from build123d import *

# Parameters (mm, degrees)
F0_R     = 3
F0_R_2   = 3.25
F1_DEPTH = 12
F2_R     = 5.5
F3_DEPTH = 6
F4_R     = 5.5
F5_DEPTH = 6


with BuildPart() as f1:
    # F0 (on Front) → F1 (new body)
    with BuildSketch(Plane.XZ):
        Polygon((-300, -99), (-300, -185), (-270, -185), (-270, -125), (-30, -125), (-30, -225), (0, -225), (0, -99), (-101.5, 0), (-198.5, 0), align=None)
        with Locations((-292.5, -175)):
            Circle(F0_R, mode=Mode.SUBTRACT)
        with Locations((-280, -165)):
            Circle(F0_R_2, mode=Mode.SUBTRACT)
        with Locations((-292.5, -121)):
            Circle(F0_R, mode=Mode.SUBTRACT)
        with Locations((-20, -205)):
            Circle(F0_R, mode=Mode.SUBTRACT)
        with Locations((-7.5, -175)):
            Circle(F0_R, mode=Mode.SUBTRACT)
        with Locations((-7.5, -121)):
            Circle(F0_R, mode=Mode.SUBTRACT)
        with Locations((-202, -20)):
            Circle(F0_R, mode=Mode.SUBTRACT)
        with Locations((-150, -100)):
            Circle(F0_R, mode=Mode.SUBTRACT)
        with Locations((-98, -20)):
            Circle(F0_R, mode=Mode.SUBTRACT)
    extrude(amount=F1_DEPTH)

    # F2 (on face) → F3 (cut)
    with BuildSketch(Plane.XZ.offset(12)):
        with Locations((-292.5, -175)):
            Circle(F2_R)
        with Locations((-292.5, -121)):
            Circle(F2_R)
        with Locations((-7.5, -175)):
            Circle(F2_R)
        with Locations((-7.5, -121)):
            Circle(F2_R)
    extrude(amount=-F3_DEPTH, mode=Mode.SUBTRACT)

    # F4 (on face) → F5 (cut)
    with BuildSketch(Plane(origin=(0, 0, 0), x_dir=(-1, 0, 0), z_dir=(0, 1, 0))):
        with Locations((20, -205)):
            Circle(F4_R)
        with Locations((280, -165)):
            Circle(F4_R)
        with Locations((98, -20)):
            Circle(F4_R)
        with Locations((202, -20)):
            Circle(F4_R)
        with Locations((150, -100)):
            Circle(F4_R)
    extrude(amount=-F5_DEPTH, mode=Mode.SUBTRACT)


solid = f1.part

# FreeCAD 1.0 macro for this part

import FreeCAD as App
import Part
import Sketcher
from FreeCAD import Vector
Q = App.Units.Quantity

doc = App.newDocument("Part")
body = doc.addObject("PartDesign::Body", "Body")

sketch1 = body.newObject("Sketcher::SketchObject", "Sketch")
sketch1.AttachmentSupport = (doc.getObject("XZ_Plane"), [""])
sketch1.MapMode = "FlatFace"
sketch1.addGeometry(Part.LineSegment(Vector(-300, -99, 0), Vector(-300, -185, 0)), False)
sketch1.addGeometry(Part.LineSegment(Vector(-300, -185, 0), Vector(-270, -185, 0)), False)
sketch1.addGeometry(Part.LineSegment(Vector(-270, -185, 0), Vector(-270, -125, 0)), False)
sketch1.addGeometry(Part.LineSegment(Vector(-270, -125, 0), Vector(-30, -125, 0)), False)
sketch1.addGeometry(Part.LineSegment(Vector(-30, -125, 0), Vector(-30, -225, 0)), False)
sketch1.addGeometry(Part.LineSegment(Vector(-30, -225, 0), Vector(0, -225, 0)), False)
sketch1.addGeometry(Part.LineSegment(Vector(0, -225, 0), Vector(0, -99, 0)), False)
sketch1.addGeometry(Part.LineSegment(Vector(0, -99, 0), Vector(-101.5, 0, 0)), False)
sketch1.addGeometry(Part.LineSegment(Vector(-101.5, 0, 0), Vector(-198.5, 0, 0)), False)
sketch1.addGeometry(Part.LineSegment(Vector(-198.5, 0, 0), Vector(-300, -99, 0)), False)
sketch1.addGeometry(Part.Circle(Vector(-292.5, -175, 0), Vector(0, 0, 1), 3), False)
sketch1.addGeometry(Part.Circle(Vector(-280, -165, 0), Vector(0, 0, 1), 3.25), False)
sketch1.addGeometry(Part.Circle(Vector(-292.5, -121, 0), Vector(0, 0, 1), 3), False)
sketch1.addGeometry(Part.Circle(Vector(-20, -205, 0), Vector(0, 0, 1), 3), False)
sketch1.addGeometry(Part.Circle(Vector(-7.5, -175, 0), Vector(0, 0, 1), 3), False)
sketch1.addGeometry(Part.Circle(Vector(-7.5, -121, 0), Vector(0, 0, 1), 3), False)
sketch1.addGeometry(Part.Circle(Vector(-202, -20, 0), Vector(0, 0, 1), 3), False)
sketch1.addGeometry(Part.Circle(Vector(-150, -100, 0), Vector(0, 0, 1), 3), False)
sketch1.addGeometry(Part.Circle(Vector(-98, -20, 0), Vector(0, 0, 1), 3), False)
sketch1.addConstraint(Sketcher.Constraint("Coincident", 0, 2, 1, 1))
sketch1.addConstraint(Sketcher.Constraint("Coincident", 1, 2, 2, 1))
sketch1.addConstraint(Sketcher.Constraint("Coincident", 2, 2, 3, 1))
sketch1.addConstraint(Sketcher.Constraint("Coincident", 3, 2, 4, 1))
sketch1.addConstraint(Sketcher.Constraint("Coincident", 4, 2, 5, 1))
sketch1.addConstraint(Sketcher.Constraint("Coincident", 5, 2, 6, 1))
sketch1.addConstraint(Sketcher.Constraint("Coincident", 6, 2, 7, 1))
sketch1.addConstraint(Sketcher.Constraint("Coincident", 7, 2, 8, 1))
sketch1.addConstraint(Sketcher.Constraint("Coincident", 8, 2, 9, 1))
sketch1.addConstraint(Sketcher.Constraint("Coincident", 9, 2, 0, 1))
sketch1.addConstraint(Sketcher.Constraint("Vertical", 0))
sketch1.addConstraint(Sketcher.Constraint("Horizontal", 1))
sketch1.addConstraint(Sketcher.Constraint("Vertical", 2))
sketch1.addConstraint(Sketcher.Constraint("Horizontal", 3))
sketch1.addConstraint(Sketcher.Constraint("Vertical", 4))
sketch1.addConstraint(Sketcher.Constraint("Horizontal", 5))
sketch1.addConstraint(Sketcher.Constraint("Vertical", 6))
sketch1.addConstraint(Sketcher.Constraint("Horizontal", 8))
sketch1.addConstraint(Sketcher.Constraint("Equal", 10, 12))
sketch1.addConstraint(Sketcher.Constraint("Equal", 12, 13))
sketch1.addConstraint(Sketcher.Constraint("Equal", 13, 14))
sketch1.addConstraint(Sketcher.Constraint("Equal", 14, 15))
sketch1.addConstraint(Sketcher.Constraint("Equal", 15, 16))
sketch1.addConstraint(Sketcher.Constraint("Equal", 16, 17))
sketch1.addConstraint(Sketcher.Constraint("Equal", 17, 18))
sketch1.addConstraint(Sketcher.Constraint("PointOnObject", 5, 2, -2))
sketch1.addConstraint(Sketcher.Constraint("PointOnObject", 7, 2, -1))
sketch1.addConstraint(Sketcher.Constraint("Horizontal", 10, 3, 14, 3))
sketch1.addConstraint(Sketcher.Constraint("Horizontal", 12, 3, 15, 3))
sketch1.addConstraint(Sketcher.Constraint("Horizontal", 16, 3, 18, 3))
sketch1.addConstraint(Sketcher.Constraint("Horizontal", 6, 2, 9, 2))
sketch1.addConstraint(Sketcher.Constraint("Vertical", 10, 3, 12, 3))
sketch1.addConstraint(Sketcher.Constraint("Vertical", 14, 3, 15, 3))
sketch1.addConstraint(Sketcher.Constraint("Equal", 1, 5))
sketch1.addConstraint(Sketcher.Constraint("Equal", 7, 9))
sketch1.addConstraint(Sketcher.Constraint("Diameter", 10, Q("6 mm")))
sketch1.addConstraint(Sketcher.Constraint("Diameter", 11, Q("6.5 mm")))
sketch1.addConstraint(Sketcher.Constraint("DistanceX", 1, 1, 1, 2, Q("30 mm")))
sketch1.addConstraint(Sketcher.Constraint("DistanceX", 3, 1, 3, 2, Q("240 mm")))
sketch1.addConstraint(Sketcher.Constraint("DistanceX", 8, 2, 8, 1, Q("97 mm")))
sketch1.addConstraint(Sketcher.Constraint("DistanceY", 0, 2, 0, 1, Q("86 mm")))
sketch1.addConstraint(Sketcher.Constraint("DistanceY", 2, 1, 2, 2, Q("60 mm")))
sketch1.addConstraint(Sketcher.Constraint("DistanceY", 4, 2, 4, 1, Q("100 mm")))
sketch1.addConstraint(Sketcher.Constraint("DistanceY", 10, 3, -1, 1, Q("175 mm")))
sketch1.addConstraint(Sketcher.Constraint("DistanceX", 11, 3, -1, 1, Q("280 mm")))
sketch1.addConstraint(Sketcher.Constraint("DistanceY", 11, 3, -1, 1, Q("165 mm")))
sketch1.addConstraint(Sketcher.Constraint("DistanceY", 12, 3, -1, 1, Q("121 mm")))
sketch1.addConstraint(Sketcher.Constraint("DistanceX", 13, 3, -1, 1, Q("20 mm")))
sketch1.addConstraint(Sketcher.Constraint("DistanceY", 13, 3, -1, 1, Q("205 mm")))
sketch1.addConstraint(Sketcher.Constraint("DistanceX", 16, 3, -1, 1, Q("202 mm")))
sketch1.addConstraint(Sketcher.Constraint("DistanceY", 16, 3, -1, 1, Q("20 mm")))
sketch1.addConstraint(Sketcher.Constraint("DistanceX", 17, 3, -1, 1, Q("150 mm")))
sketch1.addConstraint(Sketcher.Constraint("DistanceY", 17, 3, -1, 1, Q("100 mm")))
sketch1.addConstraint(Sketcher.Constraint("DistanceX", 18, 3, -1, 1, Q("98 mm")))
sketch1.addConstraint(Sketcher.Constraint("DistanceY", 0, 2, -1, 1, Q("185 mm")))
sketch1.addConstraint(Sketcher.Constraint("DistanceX", 10, 3, 14, 3, Q("285 mm")))
sketch1.addConstraint(Sketcher.Constraint("DistanceX", 10, 3, -1, 1, Q("292.5 mm")))
pad1 = body.newObject("PartDesign::Pad", "Pad")
pad1.Profile = sketch1
pad1.Length = 12

sketch2 = body.newObject("Sketcher::SketchObject", "Sketch001")
sketch2.AttachmentSupport = (doc.getObject("XZ_Plane"), [""])
sketch2.MapMode = "FlatFace"
sketch2.AttachmentOffset = App.Placement(Vector(0, 0, 12), App.Rotation())
sketch2.addGeometry(Part.Circle(Vector(-292.5, -175, 0), Vector(0, 0, 1), 5.5), False)
sketch2.addGeometry(Part.Circle(Vector(-292.5, -121, 0), Vector(0, 0, 1), 5.5), False)
sketch2.addGeometry(Part.Circle(Vector(-7.5, -175, 0), Vector(0, 0, 1), 5.5), False)
sketch2.addGeometry(Part.Circle(Vector(-7.5, -121, 0), Vector(0, 0, 1), 5.5), False)
sketch2.addConstraint(Sketcher.Constraint("Equal", 0, 1))
sketch2.addConstraint(Sketcher.Constraint("Equal", 1, 2))
sketch2.addConstraint(Sketcher.Constraint("Equal", 2, 3))
sketch2.addConstraint(Sketcher.Constraint("Horizontal", 0, 3, 2, 3))
sketch2.addConstraint(Sketcher.Constraint("Horizontal", 1, 3, 3, 3))
sketch2.addConstraint(Sketcher.Constraint("Vertical", 0, 3, 1, 3))
sketch2.addConstraint(Sketcher.Constraint("Vertical", 2, 3, 3, 3))
sketch2.addConstraint(Sketcher.Constraint("Diameter", 0, Q("11 mm")))
sketch2.addConstraint(Sketcher.Constraint("DistanceY", 0, 3, -1, 1, Q("175 mm")))
sketch2.addConstraint(Sketcher.Constraint("DistanceY", 1, 3, -1, 1, Q("121 mm")))
sketch2.addConstraint(Sketcher.Constraint("DistanceX", 0, 3, 2, 3, Q("285 mm")))
sketch2.addConstraint(Sketcher.Constraint("DistanceX", 0, 3, -1, 1, Q("292.5 mm")))
pocket1 = body.newObject("PartDesign::Pocket", "Pocket")
pocket1.Profile = sketch2
pocket1.Length = 6

sketch3 = body.newObject("Sketcher::SketchObject", "Sketch002")
sketch3.AttachmentSupport = (doc.getObject("XZ_Plane"), [""])
sketch3.MapMode = "FlatFace"
sketch3.addGeometry(Part.Circle(Vector(-20, -205, 0), Vector(0, 0, 1), 5.5), False)
sketch3.addGeometry(Part.Circle(Vector(-280, -165, 0), Vector(0, 0, 1), 5.5), False)
sketch3.addGeometry(Part.Circle(Vector(-98, -20, 0), Vector(0, 0, 1), 5.5), False)
sketch3.addGeometry(Part.Circle(Vector(-202, -20, 0), Vector(0, 0, 1), 5.5), False)
sketch3.addGeometry(Part.Circle(Vector(-150, -100, 0), Vector(0, 0, 1), 5.5), False)
sketch3.addConstraint(Sketcher.Constraint("Equal", 0, 1))
sketch3.addConstraint(Sketcher.Constraint("Equal", 1, 2))
sketch3.addConstraint(Sketcher.Constraint("Equal", 2, 3))
sketch3.addConstraint(Sketcher.Constraint("Equal", 3, 4))
sketch3.addConstraint(Sketcher.Constraint("Horizontal", 2, 3, 3, 3))
sketch3.addConstraint(Sketcher.Constraint("Diameter", 0, Q("11 mm")))
sketch3.addConstraint(Sketcher.Constraint("DistanceX", 0, 3, -1, 1, Q("20 mm")))
sketch3.addConstraint(Sketcher.Constraint("DistanceY", 0, 3, -1, 1, Q("205 mm")))
sketch3.addConstraint(Sketcher.Constraint("DistanceX", 1, 3, -1, 1, Q("280 mm")))
sketch3.addConstraint(Sketcher.Constraint("DistanceY", 1, 3, -1, 1, Q("165 mm")))
sketch3.addConstraint(Sketcher.Constraint("DistanceX", 2, 3, -1, 1, Q("98 mm")))
sketch3.addConstraint(Sketcher.Constraint("DistanceY", 2, 3, -1, 1, Q("20 mm")))
sketch3.addConstraint(Sketcher.Constraint("DistanceX", 3, 3, -1, 1, Q("202 mm")))
sketch3.addConstraint(Sketcher.Constraint("DistanceX", 4, 3, -1, 1, Q("150 mm")))
sketch3.addConstraint(Sketcher.Constraint("DistanceY", 4, 3, -1, 1, Q("100 mm")))
pocket2 = body.newObject("PartDesign::Pocket", "Pocket001")
pocket2.Profile = sketch3
pocket2.Length = 6
pocket2.Reversed = True

doc.recompute()
